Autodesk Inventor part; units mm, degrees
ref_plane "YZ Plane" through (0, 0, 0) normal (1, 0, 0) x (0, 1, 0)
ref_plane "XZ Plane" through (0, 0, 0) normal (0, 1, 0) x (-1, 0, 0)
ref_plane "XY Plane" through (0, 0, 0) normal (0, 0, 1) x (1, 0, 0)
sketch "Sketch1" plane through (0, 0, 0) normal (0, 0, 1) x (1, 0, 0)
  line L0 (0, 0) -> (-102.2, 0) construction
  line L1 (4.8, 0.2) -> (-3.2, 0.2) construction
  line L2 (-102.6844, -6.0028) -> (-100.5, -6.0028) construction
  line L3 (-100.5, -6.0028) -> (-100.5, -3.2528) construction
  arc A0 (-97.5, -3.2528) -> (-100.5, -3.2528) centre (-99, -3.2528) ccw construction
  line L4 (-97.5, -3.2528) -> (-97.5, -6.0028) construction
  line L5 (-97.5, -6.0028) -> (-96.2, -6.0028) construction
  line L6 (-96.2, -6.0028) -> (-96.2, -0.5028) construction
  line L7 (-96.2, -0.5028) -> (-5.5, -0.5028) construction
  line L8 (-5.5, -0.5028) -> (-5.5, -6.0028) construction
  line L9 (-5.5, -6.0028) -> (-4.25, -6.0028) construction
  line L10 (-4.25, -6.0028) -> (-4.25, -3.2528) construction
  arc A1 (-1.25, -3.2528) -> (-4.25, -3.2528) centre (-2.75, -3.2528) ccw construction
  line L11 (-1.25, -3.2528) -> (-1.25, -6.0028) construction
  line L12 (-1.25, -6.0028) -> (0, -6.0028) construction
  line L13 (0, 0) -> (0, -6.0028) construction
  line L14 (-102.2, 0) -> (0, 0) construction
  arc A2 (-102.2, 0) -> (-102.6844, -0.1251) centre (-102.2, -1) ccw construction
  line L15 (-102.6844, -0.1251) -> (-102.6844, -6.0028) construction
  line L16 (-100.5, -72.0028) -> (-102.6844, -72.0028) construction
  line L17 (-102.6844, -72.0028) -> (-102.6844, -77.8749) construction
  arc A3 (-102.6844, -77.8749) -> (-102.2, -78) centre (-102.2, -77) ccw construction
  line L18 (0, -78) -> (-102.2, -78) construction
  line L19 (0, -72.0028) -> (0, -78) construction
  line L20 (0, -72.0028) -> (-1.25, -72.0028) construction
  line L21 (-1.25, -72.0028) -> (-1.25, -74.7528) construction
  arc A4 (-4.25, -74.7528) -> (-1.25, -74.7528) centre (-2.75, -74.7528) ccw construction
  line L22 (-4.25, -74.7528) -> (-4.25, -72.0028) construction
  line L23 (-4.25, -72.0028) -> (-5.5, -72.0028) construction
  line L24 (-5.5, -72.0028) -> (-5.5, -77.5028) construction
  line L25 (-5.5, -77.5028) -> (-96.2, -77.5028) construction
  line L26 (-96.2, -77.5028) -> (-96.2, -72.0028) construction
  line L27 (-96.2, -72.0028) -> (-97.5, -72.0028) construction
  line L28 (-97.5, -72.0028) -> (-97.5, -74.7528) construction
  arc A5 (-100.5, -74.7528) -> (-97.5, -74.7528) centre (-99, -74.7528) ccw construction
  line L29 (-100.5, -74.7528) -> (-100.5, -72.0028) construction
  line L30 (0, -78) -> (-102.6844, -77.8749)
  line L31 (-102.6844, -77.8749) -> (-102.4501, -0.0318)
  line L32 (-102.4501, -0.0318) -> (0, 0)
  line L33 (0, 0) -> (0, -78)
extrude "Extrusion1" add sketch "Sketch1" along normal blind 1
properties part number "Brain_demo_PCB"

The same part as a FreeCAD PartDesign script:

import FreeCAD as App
import Part
import Sketcher

V = App.Vector
Q = App.Units.Quantity

doc = App.newDocument("Part")
body = doc.addObject("PartDesign::Body", "Body")

# Sketch on XY plane
sketch1 = body.newObject("Sketcher::SketchObject", "Sketch")
sketch1.AttachmentSupport = (doc.getObject("XY_Plane"), [""])
sketch1.MapMode = "FlatFace"
sketch1.addGeometry(Part.LineSegment(V(-103, -78, 0), V(0, -78, 0)), False)
sketch1.addGeometry(Part.LineSegment(V(0, -78, 0), V(0, 0, 0)), False)
sketch1.addGeometry(Part.LineSegment(V(0, 0, 0), V(-102, 0, 0)), False)
sketch1.addGeometry(Part.LineSegment(V(-102, 0, 0), V(-103, -78, 0)), False)
sketch1.addConstraint(Sketcher.Constraint("Coincident", 0, 2, 1, 1))
sketch1.addConstraint(Sketcher.Constraint("Coincident", 1, 2, 2, 1))
sketch1.addConstraint(Sketcher.Constraint("Coincident", 2, 2, 3, 1))
sketch1.addConstraint(Sketcher.Constraint("Coincident", 3, 2, 0, 1))
sketch1.addConstraint(Sketcher.Constraint("Vertical", 1))
sketch1.addConstraint(Sketcher.Constraint("Coincident", 1, 2, -1, 1))
sketch1.addConstraint(Sketcher.Constraint("DistanceY", 1, 1, 1, 2, Q("78 mm")))
sketch1.addConstraint(Sketcher.Constraint("Angle", 0, Q("-0.0698 deg")))
sketch1.addConstraint(Sketcher.Constraint("Distance", 2, Q("102.45 mm")))
sketch1.addConstraint(Sketcher.Constraint("DistanceY", 3, 2, 2, 2, Q("77.843 mm")))
sketch1.addConstraint(Sketcher.Constraint("Distance", 0, Q("102.6845 mm")))
pad1 = body.newObject("PartDesign::Pad", "Pad")
pad1.Profile = sketch1
pad1.Length = 1

doc.recompute()
